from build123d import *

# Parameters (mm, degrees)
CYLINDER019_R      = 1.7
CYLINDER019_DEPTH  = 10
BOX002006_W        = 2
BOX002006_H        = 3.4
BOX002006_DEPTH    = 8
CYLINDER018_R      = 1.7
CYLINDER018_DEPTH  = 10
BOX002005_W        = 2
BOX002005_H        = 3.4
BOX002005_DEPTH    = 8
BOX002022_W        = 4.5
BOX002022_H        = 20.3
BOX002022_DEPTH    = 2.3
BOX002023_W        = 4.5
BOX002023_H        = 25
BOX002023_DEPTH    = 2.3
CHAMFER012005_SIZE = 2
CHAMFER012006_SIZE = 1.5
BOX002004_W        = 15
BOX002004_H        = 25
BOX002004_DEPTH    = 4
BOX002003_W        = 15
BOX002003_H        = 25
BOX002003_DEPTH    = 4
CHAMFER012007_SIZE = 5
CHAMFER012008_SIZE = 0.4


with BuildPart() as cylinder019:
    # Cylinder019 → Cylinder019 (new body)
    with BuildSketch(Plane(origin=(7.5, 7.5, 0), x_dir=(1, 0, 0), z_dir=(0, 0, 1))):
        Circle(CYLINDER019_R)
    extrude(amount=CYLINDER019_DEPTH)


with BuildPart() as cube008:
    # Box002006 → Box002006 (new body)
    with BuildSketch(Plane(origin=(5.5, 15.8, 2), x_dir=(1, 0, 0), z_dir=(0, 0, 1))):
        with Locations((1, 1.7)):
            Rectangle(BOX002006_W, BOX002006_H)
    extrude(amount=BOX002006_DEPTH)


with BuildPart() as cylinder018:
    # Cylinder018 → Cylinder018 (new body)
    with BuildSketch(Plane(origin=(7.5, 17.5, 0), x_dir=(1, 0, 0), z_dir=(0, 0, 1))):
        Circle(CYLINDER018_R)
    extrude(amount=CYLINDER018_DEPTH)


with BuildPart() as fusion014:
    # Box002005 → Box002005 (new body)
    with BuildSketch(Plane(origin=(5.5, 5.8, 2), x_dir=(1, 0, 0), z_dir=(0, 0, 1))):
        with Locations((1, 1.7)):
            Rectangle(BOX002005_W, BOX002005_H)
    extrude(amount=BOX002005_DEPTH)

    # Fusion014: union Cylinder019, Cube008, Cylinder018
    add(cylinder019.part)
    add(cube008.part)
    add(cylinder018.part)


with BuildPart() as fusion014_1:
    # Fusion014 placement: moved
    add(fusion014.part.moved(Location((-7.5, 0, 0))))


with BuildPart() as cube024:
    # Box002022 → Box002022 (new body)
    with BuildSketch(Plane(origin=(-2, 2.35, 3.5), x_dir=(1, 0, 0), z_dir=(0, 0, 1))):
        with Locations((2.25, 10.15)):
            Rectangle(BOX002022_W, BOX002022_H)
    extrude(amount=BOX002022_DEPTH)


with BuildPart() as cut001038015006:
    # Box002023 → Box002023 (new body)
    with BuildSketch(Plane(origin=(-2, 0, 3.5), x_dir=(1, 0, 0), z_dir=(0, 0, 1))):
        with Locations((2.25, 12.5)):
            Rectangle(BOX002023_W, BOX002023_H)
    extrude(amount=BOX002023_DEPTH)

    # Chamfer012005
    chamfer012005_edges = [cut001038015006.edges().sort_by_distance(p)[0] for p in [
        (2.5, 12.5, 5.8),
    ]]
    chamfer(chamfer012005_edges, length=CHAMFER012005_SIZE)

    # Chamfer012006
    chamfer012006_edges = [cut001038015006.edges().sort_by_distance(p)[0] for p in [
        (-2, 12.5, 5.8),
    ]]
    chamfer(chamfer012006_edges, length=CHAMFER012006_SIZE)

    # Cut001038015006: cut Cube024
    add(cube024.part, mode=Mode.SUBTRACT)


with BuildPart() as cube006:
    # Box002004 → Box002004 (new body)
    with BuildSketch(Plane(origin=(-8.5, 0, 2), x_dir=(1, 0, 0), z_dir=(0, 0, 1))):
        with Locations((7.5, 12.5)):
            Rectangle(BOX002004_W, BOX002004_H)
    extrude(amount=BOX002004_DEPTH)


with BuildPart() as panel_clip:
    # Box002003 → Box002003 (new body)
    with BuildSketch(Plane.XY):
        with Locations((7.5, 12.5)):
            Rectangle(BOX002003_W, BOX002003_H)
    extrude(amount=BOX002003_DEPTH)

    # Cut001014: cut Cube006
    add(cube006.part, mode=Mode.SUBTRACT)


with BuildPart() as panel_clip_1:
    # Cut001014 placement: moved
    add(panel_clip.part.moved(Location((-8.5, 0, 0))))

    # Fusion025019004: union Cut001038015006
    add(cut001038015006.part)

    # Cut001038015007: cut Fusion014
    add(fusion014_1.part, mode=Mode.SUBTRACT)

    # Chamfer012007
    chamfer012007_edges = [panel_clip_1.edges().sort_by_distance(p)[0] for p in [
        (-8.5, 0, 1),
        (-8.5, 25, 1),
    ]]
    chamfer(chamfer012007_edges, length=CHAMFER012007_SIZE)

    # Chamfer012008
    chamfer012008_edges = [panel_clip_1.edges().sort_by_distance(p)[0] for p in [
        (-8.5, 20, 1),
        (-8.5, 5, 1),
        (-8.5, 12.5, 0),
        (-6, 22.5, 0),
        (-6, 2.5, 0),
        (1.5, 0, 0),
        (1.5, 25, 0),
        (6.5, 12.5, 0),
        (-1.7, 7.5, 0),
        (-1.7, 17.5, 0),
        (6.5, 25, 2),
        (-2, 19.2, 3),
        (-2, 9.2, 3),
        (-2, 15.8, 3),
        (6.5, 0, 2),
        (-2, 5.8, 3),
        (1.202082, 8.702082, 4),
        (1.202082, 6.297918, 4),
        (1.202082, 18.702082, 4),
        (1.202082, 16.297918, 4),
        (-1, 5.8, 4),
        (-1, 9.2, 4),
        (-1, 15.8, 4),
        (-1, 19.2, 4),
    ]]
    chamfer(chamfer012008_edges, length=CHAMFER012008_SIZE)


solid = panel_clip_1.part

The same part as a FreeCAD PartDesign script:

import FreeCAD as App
import Part
import Sketcher
from FreeCAD import Vector
Q = App.Units.Quantity


def edges_at(feature, points):
    """Names of the edges that pass closest to the given points."""
    edges = feature.Shape.Edges
    near = lambda p: min(range(len(edges)), key=lambda i: edges[i].distToShape(Part.Vertex(*p))[0])
    return sorted({f"Edge{near(p) + 1}" for p in points})


def add_polygon(sketch, points):
    """Adds a closed chain of lines whose ends are joined by coincident constraints."""
    first, n = sketch.GeometryCount, len(points)
    for a, b in zip(points, points[1:] + points[:1]):
        sketch.addGeometry(Part.LineSegment(App.Vector(*a, 0), App.Vector(*b, 0)), False)
    for i in range(n):
        sketch.addConstraint(Sketcher.Constraint("Coincident", first + i, 2, first + (i + 1) % n, 1))

doc = App.newDocument("Part")
body = doc.addObject("PartDesign::Body", "Body")

# Sketch on XY plane
sketch1 = body.newObject("Sketcher::SketchObject", "Sketch")
sketch1.AttachmentSupport = (doc.getObject("XY_Plane"), [""])
sketch1.MapMode = "FlatFace"
sketch1.addGeometry(Part.Circle(Vector(7.5, 7.5, 0), Vector(0, 0, 1), 1.7), False)
sketch1.addConstraint([
    Sketcher.Constraint("Diameter", 0, Q("3.4 mm")),
    Sketcher.Constraint("DistanceX", -1, 1, 0, 3, Q("7.5 mm")),
    Sketcher.Constraint("DistanceY", -1, 1, 0, 3, Q("7.5 mm")),
])
pad1 = body.newObject("PartDesign::Pad", "Pad")
pad1.Profile = sketch1
pad1.Length = 10
body2 = doc.addObject("PartDesign::Body", "Body001")

# Sketch on XY plane
sketch2 = body2.newObject("Sketcher::SketchObject", "Sketch001")
sketch2.AttachmentSupport = (doc.getObject("XY_Plane001"), [""])
sketch2.MapMode = "FlatFace"
sketch2.AttachmentOffset = App.Placement(Vector(0, 0, 2), App.Rotation())
add_polygon(sketch2, [(5.5, 19.2), (5.5, 15.8), (7.5, 15.8), (7.5, 19.2)])  # lines 0-3
sketch2.addConstraint([
    Sketcher.Constraint("Vertical", 0),
    Sketcher.Constraint("Horizontal", 1),
    Sketcher.Constraint("Vertical", 2),
    Sketcher.Constraint("Horizontal", 3),
    Sketcher.Constraint("DistanceX", 1, 1, 1, 2, Q("2 mm")),
    Sketcher.Constraint("DistanceY", 0, 2, 0, 1, Q("3.4 mm")),
    Sketcher.Constraint("DistanceX", -1, 1, 0, 2, Q("5.5 mm")),
    Sketcher.Constraint("DistanceY", -1, 1, 0, 2, Q("15.8 mm")),
])
pad2 = body2.newObject("PartDesign::Pad", "Pad001")
pad2.Profile = sketch2
pad2.Length = 8
body3 = doc.addObject("PartDesign::Body", "Body002")

# Sketch on XY plane
sketch3 = body3.newObject("Sketcher::SketchObject", "Sketch002")
sketch3.AttachmentSupport = (doc.getObject("XY_Plane002"), [""])
sketch3.MapMode = "FlatFace"
sketch3.addGeometry(Part.Circle(Vector(7.5, 17.5, 0), Vector(0, 0, 1), 1.7), False)
sketch3.addConstraint([
    Sketcher.Constraint("Diameter", 0, Q("3.4 mm")),
    Sketcher.Constraint("DistanceX", -1, 1, 0, 3, Q("7.5 mm")),
    Sketcher.Constraint("DistanceY", -1, 1, 0, 3, Q("17.5 mm")),
])
pad3 = body3.newObject("PartDesign::Pad", "Pad002")
pad3.Profile = sketch3
pad3.Length = 10
body4 = doc.addObject("PartDesign::Body", "Body003")
body4.AllowCompound = True

# Sketch on XY plane
sketch4 = body4.newObject("Sketcher::SketchObject", "Sketch003")
sketch4.AttachmentSupport = (doc.getObject("XY_Plane003"), [""])
sketch4.MapMode = "FlatFace"
sketch4.AttachmentOffset = App.Placement(Vector(0, 0, 2), App.Rotation())
add_polygon(sketch4, [(5.5, 9.2), (5.5, 5.8), (7.5, 5.8), (7.5, 9.2)])  # lines 0-3
sketch4.addConstraint([
    Sketcher.Constraint("Vertical", 0),
    Sketcher.Constraint("Horizontal", 1),
    Sketcher.Constraint("Vertical", 2),
    Sketcher.Constraint("Horizontal", 3),
    Sketcher.Constraint("DistanceX", 1, 1, 1, 2, Q("2 mm")),
    Sketcher.Constraint("DistanceY", 0, 2, 0, 1, Q("3.4 mm")),
    Sketcher.Constraint("DistanceX", -1, 1, 0, 2, Q("5.5 mm")),
    Sketcher.Constraint("DistanceY", -1, 1, 0, 2, Q("5.8 mm")),
])
pad4 = body4.newObject("PartDesign::Pad", "Pad003")
pad4.Profile = sketch4
pad4.Length = 8
doc.recompute()

boolean = body4.newObject("PartDesign::Boolean", "Boolean")
boolean.Type = "Fuse"
boolean.addObjects([body])
doc.recompute()

boolean2 = body4.newObject("PartDesign::Boolean", "Boolean001")
boolean2.Type = "Fuse"
boolean2.addObjects([body2])
doc.recompute()

boolean3 = body4.newObject("PartDesign::Boolean", "Boolean002")
boolean3.Type = "Fuse"
boolean3.addObjects([body3])
body5 = doc.addObject("PartDesign::Body", "Body004")
body5.AllowCompound = True
doc.recompute()

body4.Placement = App.Placement(Vector(-7.5, 0, 0), App.Rotation(Vector(0, 0, 1), 0))
boolean4 = body5.newObject("PartDesign::Boolean", "Boolean003")
boolean4.Type = "Fuse"
boolean4.addObjects([body4])
body6 = doc.addObject("PartDesign::Body", "Body005")

# Sketch on XY plane
sketch5 = body6.newObject("Sketcher::SketchObject", "Sketch004")
sketch5.AttachmentSupport = (doc.getObject("XY_Plane005"), [""])
sketch5.MapMode = "FlatFace"
sketch5.AttachmentOffset = App.Placement(Vector(0, 0, 3.5), App.Rotation())
add_polygon(sketch5, [(-2, 22.65), (-2, 2.35), (2.5, 2.35), (2.5, 22.65)])  # lines 0-3
sketch5.addConstraint([
    Sketcher.Constraint("Vertical", 0),
    Sketcher.Constraint("Horizontal", 1),
    Sketcher.Constraint("Vertical", 2),
    Sketcher.Constraint("Horizontal", 3),
    Sketcher.Constraint("DistanceX", 1, 1, 1, 2, Q("4.5 mm")),
    Sketcher.Constraint("DistanceY", 0, 2, 0, 1, Q("20.3 mm")),
    Sketcher.Constraint("DistanceX", 0, 2, -1, 1, Q("2 mm")),
    Sketcher.Constraint("DistanceY", -1, 1, 0, 2, Q("2.35 mm")),
])
pad5 = body6.newObject("PartDesign::Pad", "Pad004")
pad5.Profile = sketch5
pad5.Length = 2.3
body7 = doc.addObject("PartDesign::Body", "Body006")
body7.AllowCompound = True

# Sketch on XY plane
sketch6 = body7.newObject("Sketcher::SketchObject", "Sketch005")
sketch6.AttachmentSupport = (doc.getObject("XY_Plane006"), [""])
sketch6.MapMode = "FlatFace"
sketch6.AttachmentOffset = App.Placement(Vector(0, 0, 3.5), App.Rotation())
add_polygon(sketch6, [(-2, 25), (-2, 0), (2.5, 0), (2.5, 25)])  # lines 0-3
sketch6.addConstraint([
    Sketcher.Constraint("Vertical", 0),
    Sketcher.Constraint("Horizontal", 1),
    Sketcher.Constraint("Vertical", 2),
    Sketcher.Constraint("Horizontal", 3),
    Sketcher.Constraint("PointOnObject", 0, 2, -1),
    Sketcher.Constraint("DistanceY", 0, 2, 0, 1, Q("25 mm")),
    Sketcher.Constraint("DistanceX", 1, 1, 1, 2, Q("4.5 mm")),
    Sketcher.Constraint("DistanceX", 0, 2, -1, 1, Q("2 mm")),
])
pad6 = body7.newObject("PartDesign::Pad", "Pad005")
pad6.Profile = sketch6
pad6.Length = 2.3
doc.recompute()

chamfer = body7.newObject("PartDesign::Chamfer", "Chamfer")
chamfer.Base = (pad6, edges_at(pad6, [(2.5, 12.5, 5.8)]))
chamfer.Size = 2
doc.recompute()

chamfer2 = body7.newObject("PartDesign::Chamfer", "Chamfer001")
chamfer2.Base = (chamfer, edges_at(chamfer, [(-2, 12.5, 5.8)]))
chamfer2.Size = 1.5
doc.recompute()

boolean5 = body7.newObject("PartDesign::Boolean", "Boolean004")
boolean5.Type = "Cut"
boolean5.addObjects([body6])
body8 = doc.addObject("PartDesign::Body", "Body007")

# Sketch on XY plane
sketch7 = body8.newObject("Sketcher::SketchObject", "Sketch006")
sketch7.AttachmentSupport = (doc.getObject("XY_Plane007"), [""])
sketch7.MapMode = "FlatFace"
sketch7.AttachmentOffset = App.Placement(Vector(0, 0, 2), App.Rotation())
add_polygon(sketch7, [(-8.5, 25), (-8.5, 0), (6.5, 0), (6.5, 25)])  # lines 0-3
sketch7.addConstraint([
    Sketcher.Constraint("Vertical", 0),
    Sketcher.Constraint("Horizontal", 1),
    Sketcher.Constraint("Vertical", 2),
    Sketcher.Constraint("Horizontal", 3),
    Sketcher.Constraint("PointOnObject", 0, 2, -1),
    Sketcher.Constraint("DistanceX", 1, 1, 1, 2, Q("15 mm")),
    Sketcher.Constraint("DistanceY", 0, 2, 0, 1, Q("25 mm")),
    Sketcher.Constraint("DistanceX", 0, 2, -1, 1, Q("8.5 mm")),
])
pad7 = body8.newObject("PartDesign::Pad", "Pad006")
pad7.Profile = sketch7
pad7.Length = 4
body9 = doc.addObject("PartDesign::Body", "Body008")

# Sketch on XY plane
sketch8 = body9.newObject("Sketcher::SketchObject", "Sketch007")
sketch8.AttachmentSupport = (doc.getObject("XY_Plane008"), [""])
sketch8.MapMode = "FlatFace"
add_polygon(sketch8, [(0, 25), (0, 0), (15, 0), (15, 25)])  # lines 0-3
sketch8.addConstraint([
    Sketcher.Constraint("Vertical", 0),
    Sketcher.Constraint("Horizontal", 1),
    Sketcher.Constraint("Vertical", 2),
    Sketcher.Constraint("Horizontal", 3),
    Sketcher.Constraint("Coincident", 0, 2, -1, 1),
    Sketcher.Constraint("DistanceX", 1, 1, 1, 2, Q("15 mm")),
    Sketcher.Constraint("DistanceY", 0, 2, 0, 1, Q("25 mm")),
])
pad8 = body9.newObject("PartDesign::Pad", "Pad007")
pad8.Profile = sketch8
pad8.Length = 4
doc.recompute()

boolean6 = body9.newObject("PartDesign::Boolean", "Boolean005")
boolean6.Type = "Cut"
boolean6.addObjects([body8])
body10 = doc.addObject("PartDesign::Body", "Body009")
doc.recompute()

body9.Placement = App.Placement(Vector(-8.5, 0, 0), App.Rotation(Vector(0, 0, 1), 0))
boolean7 = body10.newObject("PartDesign::Boolean", "Boolean006")
boolean7.Type = "Fuse"
boolean7.addObjects([body9])
doc.recompute()

boolean8 = body10.newObject("PartDesign::Boolean", "Boolean007")
boolean8.Type = "Fuse"
boolean8.addObjects([body7])
doc.recompute()

boolean9 = body10.newObject("PartDesign::Boolean", "Boolean008")
boolean9.Type = "Cut"
boolean9.addObjects([body5])
doc.recompute()

chamfer3 = body10.newObject("PartDesign::Chamfer", "Chamfer002")
chamfer3.Base = (boolean9, edges_at(boolean9, [(-8.5, 0, 1), (-8.5, 25, 1)]))
chamfer3.Size = 5
doc.recompute()

chamfer4 = body10.newObject("PartDesign::Chamfer", "Chamfer003")
chamfer4.Base = (chamfer3, edges_at(chamfer3, [
    (-8.5, 20, 1),
    (-8.5, 5, 1),
    (-8.5, 12.5, 0),
    (-6, 22.5, 0),
    (-6, 2.5, 0),
    (1.5, 0, 0),
    (1.5, 25, 0),
    (6.5, 12.5, 0),
    (-1.7, 7.5, 0),
    (-1.7, 17.5, 0),
    (6.5, 25, 2),
    (-2, 19.2, 3),
    (-2, 9.2, 3),
    (-2, 15.8, 3),
    (6.5, 0, 2),
    (-2, 5.8, 3),
    (1.202, 8.702, 4),
    (1.202, 6.298, 4),
    (1.202, 18.702, 4),
    (1.202, 16.298, 4),
    (-1, 5.8, 4),
    (-1, 9.2, 4),
    (-1, 15.8, 4),
    (-1, 19.2, 4),
]))
chamfer4.Size = 0.4

doc.recompute()
